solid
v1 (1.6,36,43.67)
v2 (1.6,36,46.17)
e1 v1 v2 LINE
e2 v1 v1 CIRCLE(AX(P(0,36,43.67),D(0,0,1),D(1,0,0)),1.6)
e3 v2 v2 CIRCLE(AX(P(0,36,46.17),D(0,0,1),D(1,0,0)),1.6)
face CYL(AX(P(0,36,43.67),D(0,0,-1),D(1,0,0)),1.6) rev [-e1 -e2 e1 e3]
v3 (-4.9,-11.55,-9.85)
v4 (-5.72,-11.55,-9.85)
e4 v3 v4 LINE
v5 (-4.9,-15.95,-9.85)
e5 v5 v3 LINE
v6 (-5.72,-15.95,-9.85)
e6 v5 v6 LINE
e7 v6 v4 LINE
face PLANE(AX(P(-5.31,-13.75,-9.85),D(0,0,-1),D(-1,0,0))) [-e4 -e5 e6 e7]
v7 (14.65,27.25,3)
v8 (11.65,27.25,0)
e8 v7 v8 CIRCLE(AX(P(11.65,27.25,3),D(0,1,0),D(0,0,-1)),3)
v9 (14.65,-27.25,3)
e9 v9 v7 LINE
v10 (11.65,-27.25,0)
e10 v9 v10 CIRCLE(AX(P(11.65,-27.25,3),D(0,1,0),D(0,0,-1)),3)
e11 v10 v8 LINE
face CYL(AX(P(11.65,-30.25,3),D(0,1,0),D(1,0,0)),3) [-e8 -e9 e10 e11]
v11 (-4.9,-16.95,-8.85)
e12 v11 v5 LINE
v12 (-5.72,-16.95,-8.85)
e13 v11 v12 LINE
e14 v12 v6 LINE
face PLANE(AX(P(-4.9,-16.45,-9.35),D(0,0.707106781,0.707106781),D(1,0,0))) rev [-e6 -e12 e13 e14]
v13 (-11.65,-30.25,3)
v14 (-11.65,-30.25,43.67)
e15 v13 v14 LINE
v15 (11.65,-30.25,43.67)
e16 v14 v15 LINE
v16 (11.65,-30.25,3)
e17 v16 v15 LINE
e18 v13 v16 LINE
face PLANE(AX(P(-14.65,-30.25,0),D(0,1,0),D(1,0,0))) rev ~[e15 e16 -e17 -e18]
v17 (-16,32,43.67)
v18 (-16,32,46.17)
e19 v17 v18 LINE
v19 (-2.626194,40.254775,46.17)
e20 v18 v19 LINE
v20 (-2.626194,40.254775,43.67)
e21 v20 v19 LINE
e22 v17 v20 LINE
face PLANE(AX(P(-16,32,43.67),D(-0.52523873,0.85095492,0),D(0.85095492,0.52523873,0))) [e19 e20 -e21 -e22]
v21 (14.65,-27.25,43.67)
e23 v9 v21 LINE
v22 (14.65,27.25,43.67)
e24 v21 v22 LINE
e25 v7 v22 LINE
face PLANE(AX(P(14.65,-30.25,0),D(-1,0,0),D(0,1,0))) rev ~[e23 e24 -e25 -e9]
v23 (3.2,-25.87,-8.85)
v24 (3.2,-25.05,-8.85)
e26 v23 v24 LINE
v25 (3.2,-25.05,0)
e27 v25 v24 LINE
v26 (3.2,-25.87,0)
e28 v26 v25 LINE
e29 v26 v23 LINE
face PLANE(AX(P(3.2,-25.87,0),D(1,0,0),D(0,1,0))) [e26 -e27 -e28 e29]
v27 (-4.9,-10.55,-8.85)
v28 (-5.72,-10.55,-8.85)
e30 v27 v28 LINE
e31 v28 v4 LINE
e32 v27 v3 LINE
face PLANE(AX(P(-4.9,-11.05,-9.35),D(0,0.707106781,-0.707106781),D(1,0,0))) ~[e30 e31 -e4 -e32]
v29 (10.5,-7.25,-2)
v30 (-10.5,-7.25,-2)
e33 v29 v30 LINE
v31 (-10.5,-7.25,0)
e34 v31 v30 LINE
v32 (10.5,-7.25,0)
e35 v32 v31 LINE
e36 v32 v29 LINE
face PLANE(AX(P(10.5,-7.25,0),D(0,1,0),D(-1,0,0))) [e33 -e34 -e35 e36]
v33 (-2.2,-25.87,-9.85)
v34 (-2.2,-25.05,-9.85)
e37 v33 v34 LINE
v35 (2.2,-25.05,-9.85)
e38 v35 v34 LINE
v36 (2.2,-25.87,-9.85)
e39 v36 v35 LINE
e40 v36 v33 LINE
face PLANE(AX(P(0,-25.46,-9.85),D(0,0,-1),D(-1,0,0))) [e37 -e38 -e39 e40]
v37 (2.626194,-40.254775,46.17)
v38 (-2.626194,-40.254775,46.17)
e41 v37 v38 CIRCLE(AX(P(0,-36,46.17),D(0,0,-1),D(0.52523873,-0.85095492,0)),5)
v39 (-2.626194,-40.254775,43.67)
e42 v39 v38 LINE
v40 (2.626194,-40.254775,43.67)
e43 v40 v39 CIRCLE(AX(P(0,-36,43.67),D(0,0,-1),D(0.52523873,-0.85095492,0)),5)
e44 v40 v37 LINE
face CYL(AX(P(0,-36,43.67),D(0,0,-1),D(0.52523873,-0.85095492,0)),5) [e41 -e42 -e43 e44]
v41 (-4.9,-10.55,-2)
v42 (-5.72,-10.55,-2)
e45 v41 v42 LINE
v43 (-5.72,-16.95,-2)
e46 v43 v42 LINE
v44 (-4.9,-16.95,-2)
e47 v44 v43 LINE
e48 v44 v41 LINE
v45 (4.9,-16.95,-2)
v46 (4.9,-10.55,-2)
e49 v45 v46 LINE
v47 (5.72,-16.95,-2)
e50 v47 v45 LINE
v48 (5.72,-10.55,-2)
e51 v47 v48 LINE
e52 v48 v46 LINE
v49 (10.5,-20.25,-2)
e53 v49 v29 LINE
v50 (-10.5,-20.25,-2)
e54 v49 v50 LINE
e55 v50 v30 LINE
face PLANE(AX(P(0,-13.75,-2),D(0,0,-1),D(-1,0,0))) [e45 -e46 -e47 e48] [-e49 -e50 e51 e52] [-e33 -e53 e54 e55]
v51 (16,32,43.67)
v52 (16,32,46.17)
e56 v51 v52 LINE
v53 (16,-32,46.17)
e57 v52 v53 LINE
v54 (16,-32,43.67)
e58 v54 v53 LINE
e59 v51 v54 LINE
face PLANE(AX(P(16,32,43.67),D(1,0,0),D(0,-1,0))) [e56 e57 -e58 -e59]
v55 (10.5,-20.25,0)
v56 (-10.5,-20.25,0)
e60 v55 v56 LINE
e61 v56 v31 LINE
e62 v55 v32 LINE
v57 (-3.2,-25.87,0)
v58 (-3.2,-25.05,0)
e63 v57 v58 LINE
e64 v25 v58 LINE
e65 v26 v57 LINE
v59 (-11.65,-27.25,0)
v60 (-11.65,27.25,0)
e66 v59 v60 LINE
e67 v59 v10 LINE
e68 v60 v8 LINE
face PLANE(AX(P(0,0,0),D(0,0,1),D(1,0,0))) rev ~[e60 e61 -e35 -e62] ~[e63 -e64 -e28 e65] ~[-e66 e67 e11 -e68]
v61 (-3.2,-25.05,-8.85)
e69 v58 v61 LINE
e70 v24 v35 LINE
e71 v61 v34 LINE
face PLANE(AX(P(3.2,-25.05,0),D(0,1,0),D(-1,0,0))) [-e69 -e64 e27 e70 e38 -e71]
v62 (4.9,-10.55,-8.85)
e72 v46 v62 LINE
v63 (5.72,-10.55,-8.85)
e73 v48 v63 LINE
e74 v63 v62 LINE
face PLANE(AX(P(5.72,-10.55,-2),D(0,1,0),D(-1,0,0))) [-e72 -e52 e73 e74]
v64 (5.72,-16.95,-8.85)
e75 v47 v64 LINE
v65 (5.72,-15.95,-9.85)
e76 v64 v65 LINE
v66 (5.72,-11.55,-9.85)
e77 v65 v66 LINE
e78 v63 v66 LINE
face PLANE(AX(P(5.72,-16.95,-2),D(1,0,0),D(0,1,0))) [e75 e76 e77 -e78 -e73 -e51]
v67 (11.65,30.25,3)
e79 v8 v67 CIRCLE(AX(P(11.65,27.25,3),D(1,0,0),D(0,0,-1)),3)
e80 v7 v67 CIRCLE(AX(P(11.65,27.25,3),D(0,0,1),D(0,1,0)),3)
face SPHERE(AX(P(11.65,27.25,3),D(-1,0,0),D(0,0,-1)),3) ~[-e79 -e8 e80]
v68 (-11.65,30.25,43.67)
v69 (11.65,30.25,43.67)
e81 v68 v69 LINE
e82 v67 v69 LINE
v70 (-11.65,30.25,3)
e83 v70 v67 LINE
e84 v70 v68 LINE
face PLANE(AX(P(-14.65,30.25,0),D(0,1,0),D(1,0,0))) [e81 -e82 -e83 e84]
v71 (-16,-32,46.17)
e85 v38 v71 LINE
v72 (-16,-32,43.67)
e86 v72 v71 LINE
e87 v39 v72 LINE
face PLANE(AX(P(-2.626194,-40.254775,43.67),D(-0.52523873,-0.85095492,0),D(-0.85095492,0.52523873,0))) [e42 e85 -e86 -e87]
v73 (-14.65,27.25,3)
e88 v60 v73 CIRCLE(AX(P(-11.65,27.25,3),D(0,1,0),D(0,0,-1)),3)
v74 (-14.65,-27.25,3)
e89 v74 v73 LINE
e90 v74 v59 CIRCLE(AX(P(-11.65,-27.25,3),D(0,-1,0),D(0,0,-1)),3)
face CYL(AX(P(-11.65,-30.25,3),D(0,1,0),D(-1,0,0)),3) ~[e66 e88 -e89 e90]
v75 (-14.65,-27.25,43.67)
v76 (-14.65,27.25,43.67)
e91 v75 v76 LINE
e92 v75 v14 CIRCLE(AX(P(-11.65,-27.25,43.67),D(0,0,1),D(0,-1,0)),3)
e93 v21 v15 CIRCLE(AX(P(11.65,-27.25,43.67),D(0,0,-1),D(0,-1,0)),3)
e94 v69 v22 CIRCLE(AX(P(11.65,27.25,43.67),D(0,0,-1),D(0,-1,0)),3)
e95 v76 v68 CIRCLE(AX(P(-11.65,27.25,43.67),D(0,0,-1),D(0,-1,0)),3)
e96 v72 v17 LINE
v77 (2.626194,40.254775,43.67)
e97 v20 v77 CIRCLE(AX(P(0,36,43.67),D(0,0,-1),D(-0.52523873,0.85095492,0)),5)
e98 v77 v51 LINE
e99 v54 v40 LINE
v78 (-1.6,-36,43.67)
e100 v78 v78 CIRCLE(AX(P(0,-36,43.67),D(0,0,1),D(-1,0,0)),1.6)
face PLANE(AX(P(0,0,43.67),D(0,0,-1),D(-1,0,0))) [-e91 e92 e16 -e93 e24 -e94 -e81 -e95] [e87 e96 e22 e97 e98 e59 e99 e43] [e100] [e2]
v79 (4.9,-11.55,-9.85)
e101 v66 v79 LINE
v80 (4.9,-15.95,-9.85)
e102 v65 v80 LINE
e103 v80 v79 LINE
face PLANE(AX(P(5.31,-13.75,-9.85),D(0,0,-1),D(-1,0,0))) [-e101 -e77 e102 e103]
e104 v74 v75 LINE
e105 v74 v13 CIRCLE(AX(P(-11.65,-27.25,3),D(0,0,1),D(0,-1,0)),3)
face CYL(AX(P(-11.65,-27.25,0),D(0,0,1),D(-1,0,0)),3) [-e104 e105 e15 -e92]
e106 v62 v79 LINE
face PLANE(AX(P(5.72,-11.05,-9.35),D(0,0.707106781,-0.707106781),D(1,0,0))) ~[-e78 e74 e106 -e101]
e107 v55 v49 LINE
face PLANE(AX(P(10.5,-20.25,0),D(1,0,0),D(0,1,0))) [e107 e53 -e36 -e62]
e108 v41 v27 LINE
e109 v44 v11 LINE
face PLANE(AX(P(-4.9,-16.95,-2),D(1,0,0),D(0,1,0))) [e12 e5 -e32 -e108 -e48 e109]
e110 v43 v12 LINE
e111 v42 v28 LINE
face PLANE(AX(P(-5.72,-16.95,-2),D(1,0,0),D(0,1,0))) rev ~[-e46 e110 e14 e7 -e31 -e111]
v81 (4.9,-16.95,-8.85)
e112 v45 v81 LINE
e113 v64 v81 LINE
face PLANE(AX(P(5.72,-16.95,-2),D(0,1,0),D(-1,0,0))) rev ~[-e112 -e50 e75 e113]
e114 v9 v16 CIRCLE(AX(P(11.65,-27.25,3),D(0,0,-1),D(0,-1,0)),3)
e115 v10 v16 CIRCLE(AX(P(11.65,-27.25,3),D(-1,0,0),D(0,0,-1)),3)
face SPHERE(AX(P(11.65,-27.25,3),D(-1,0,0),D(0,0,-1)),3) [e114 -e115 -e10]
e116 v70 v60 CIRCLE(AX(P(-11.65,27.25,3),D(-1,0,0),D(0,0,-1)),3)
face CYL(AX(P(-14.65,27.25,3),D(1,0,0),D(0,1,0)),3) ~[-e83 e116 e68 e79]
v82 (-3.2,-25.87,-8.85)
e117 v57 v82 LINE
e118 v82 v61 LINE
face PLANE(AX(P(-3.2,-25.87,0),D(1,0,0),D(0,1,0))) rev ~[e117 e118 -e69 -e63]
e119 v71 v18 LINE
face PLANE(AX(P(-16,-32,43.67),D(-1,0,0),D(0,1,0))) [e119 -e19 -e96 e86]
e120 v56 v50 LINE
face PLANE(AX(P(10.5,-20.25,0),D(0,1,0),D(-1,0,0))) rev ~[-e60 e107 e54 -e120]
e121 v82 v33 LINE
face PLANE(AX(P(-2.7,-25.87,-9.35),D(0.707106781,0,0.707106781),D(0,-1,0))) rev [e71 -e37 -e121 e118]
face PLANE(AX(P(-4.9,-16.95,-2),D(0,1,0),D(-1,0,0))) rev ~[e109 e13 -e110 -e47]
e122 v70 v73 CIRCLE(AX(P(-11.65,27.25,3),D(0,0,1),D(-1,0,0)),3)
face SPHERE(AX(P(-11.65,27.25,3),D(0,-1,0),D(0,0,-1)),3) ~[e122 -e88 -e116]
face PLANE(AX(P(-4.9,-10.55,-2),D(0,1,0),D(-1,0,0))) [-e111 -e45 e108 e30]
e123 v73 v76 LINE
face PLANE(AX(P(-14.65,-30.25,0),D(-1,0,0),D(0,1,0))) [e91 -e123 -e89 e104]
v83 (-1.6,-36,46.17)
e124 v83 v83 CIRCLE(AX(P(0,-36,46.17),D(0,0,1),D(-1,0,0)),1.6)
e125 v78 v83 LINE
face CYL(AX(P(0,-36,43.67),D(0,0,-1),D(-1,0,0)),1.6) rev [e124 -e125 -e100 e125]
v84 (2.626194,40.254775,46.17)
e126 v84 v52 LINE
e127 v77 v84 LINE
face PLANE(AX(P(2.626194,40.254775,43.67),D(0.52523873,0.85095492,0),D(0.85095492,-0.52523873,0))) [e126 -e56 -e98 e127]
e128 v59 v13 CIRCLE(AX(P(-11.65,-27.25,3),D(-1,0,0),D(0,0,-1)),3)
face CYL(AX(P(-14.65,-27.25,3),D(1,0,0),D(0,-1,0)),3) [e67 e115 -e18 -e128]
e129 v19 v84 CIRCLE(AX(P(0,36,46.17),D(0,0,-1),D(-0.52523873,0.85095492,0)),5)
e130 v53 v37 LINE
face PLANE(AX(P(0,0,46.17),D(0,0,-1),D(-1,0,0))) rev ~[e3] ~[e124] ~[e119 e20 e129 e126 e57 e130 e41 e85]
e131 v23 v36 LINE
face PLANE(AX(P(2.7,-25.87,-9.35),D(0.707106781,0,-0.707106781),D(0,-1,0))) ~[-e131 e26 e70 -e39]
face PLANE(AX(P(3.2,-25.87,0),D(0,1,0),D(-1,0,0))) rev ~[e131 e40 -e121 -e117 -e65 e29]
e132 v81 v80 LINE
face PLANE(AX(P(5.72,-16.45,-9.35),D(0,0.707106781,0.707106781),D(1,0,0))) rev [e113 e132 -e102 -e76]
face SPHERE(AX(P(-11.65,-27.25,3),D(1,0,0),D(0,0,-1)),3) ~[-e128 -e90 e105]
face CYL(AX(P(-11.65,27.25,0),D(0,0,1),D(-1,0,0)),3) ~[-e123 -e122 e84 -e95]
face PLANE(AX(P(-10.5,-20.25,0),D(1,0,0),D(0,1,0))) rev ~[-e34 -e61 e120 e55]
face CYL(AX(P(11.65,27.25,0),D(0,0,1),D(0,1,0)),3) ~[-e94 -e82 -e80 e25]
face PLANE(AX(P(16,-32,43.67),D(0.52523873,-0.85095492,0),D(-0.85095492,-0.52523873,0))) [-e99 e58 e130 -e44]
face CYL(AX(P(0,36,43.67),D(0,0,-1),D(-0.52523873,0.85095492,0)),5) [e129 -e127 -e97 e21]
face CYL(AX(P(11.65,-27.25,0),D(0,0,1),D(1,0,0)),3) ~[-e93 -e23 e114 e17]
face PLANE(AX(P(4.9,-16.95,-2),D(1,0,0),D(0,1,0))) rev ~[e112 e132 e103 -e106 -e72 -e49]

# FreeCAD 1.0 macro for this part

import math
import FreeCAD as App
import Part
import Sketcher
from FreeCAD import Vector


def edges_at(feature, points):
    """Names of the edges that pass closest to the given points."""
    edges = feature.Shape.Edges
    near = lambda p: min(range(len(edges)), key=lambda i: edges[i].distToShape(Part.Vertex(*p))[0])
    return sorted({f"Edge{near(p) + 1}" for p in points})


def add_polygon(sketch, points):
    """Adds a closed chain of lines whose ends are joined by coincident constraints."""
    first, n = sketch.GeometryCount, len(points)
    for a, b in zip(points, points[1:] + points[:1]):
        sketch.addGeometry(Part.LineSegment(App.Vector(*a, 0), App.Vector(*b, 0)), False)
    for i in range(n):
        sketch.addConstraint(Sketcher.Constraint("Coincident", first + i, 2, first + (i + 1) % n, 1))

doc = App.newDocument("Part")
params = doc.addObject("Spreadsheet::Sheet", "Params")
for row, (alias, value) in enumerate([
    ("sketch1_width", "29.3 mm"),
    ("sketch1_height", "60.5 mm"),
    ("pad1_length", "43.67 mm"),
    ("sketch2_radius", "5 mm"),
    ("sketch2_diameter", "3.2 mm"),
    ("sketch2_height", "64 mm"),
    ("pad2_length", "2.5 mm"),
    ("fillet_radius", "3 mm"),
    ("sketch3_width", "21 mm"),
    ("sketch3_height", "13 mm"),
    ("pad3_length", "2 mm"),
    ("sketch4_height", "6.4 mm"),
    ("sketch4_width", "0.82 mm"),
    ("pad4_length", "7.85 mm"),
    ("sketch5_width", "6.4 mm"),
    ("sketch5_height", "0.82 mm"),
    ("pad5_length", "9.85 mm"),
    ("chamfer_size", "1 mm"),
], start=1):
    params.set(f"A{row}", alias)
    params.set(f"B{row}", "=" + value)
    params.setAlias(f"B{row}", alias)

body = doc.addObject("PartDesign::Body", "Body")

# Sketch on XY plane
sketch1 = body.newObject("Sketcher::SketchObject", "Sketch")
sketch1.AttachmentSupport = (doc.getObject("XY_Plane"), [""])
sketch1.MapMode = "FlatFace"
add_polygon(sketch1, [(-15, 30), (-15, -30), (15, -30), (15, 30)])  # lines 0-3
sketch1.addConstraint(Sketcher.Constraint("Vertical", 0))
sketch1.addConstraint(Sketcher.Constraint("Horizontal", 1))
sketch1.addConstraint(Sketcher.Constraint("Vertical", 2))
sketch1.addConstraint(Sketcher.Constraint("Horizontal", 3))
sketch1.addConstraint(Sketcher.Constraint("Symmetric", 0, 2, 2, 2, -1, 1))
sketch1.addConstraint(Sketcher.Constraint("DistanceX", 1, 1, 1, 2, 29.3))
sketch1.addConstraint(Sketcher.Constraint("DistanceY", 0, 2, 0, 1, 60.5))
sketch1.setExpression("Constraints[9]", "Params.sketch1_width")
sketch1.setExpression("Constraints[10]", "Params.sketch1_height")
pad1 = body.newObject("PartDesign::Pad", "Pad")
pad1.Profile = sketch1
pad1.setExpression("Length", "Params.pad1_length")

# Sketch on XY plane
sketch2 = body.newObject("Sketcher::SketchObject", "Sketch001")
sketch2.AttachmentSupport = (doc.getObject("XY_Plane"), [""])
sketch2.MapMode = "FlatFace"
sketch2.AttachmentOffset = App.Placement(Vector(0, 0, 43.67), App.Rotation())
sketch2.addGeometry(Part.LineSegment(Vector(-2.6, 40.3, 0), Vector(-16, 32, 0)), False)
sketch2.addGeometry(Part.LineSegment(Vector(-16, 32, 0), Vector(-16, -32, 0)), False)
sketch2.addGeometry(Part.LineSegment(Vector(-16, -32, 0), Vector(-2.6, -40.3, 0)), False)
sketch2.addGeometry(Part.ArcOfCircle(Part.Circle(Vector(0, -36, 0), Vector(0, 0, 1), 5), math.radians(-122), math.radians(-58)), False)
sketch2.addGeometry(Part.LineSegment(Vector(2.6, -40.3, 0), Vector(16, -32, 0)), False)
sketch2.addGeometry(Part.LineSegment(Vector(16, -32, 0), Vector(16, 32, 0)), False)
sketch2.addGeometry(Part.LineSegment(Vector(16, 32, 0), Vector(2.6, 40.3, 0)), False)
sketch2.addGeometry(Part.ArcOfCircle(Part.Circle(Vector(0, 36, 0), Vector(0, 0, 1), 5), math.radians(58), math.radians(122)), False)
sketch2.addGeometry(Part.Circle(Vector(0, -36, 0), Vector(0, 0, 1), 1.6), False)
sketch2.addGeometry(Part.Circle(Vector(0, 36, 0), Vector(0, 0, 1), 1.6), False)
sketch2.addConstraint(Sketcher.Constraint("Coincident", 0, 2, 1, 1))
sketch2.addConstraint(Sketcher.Constraint("Coincident", 1, 2, 2, 1))
sketch2.addConstraint(Sketcher.Constraint("Tangent", 2, 2, 3, 1))
sketch2.addConstraint(Sketcher.Constraint("Tangent", 3, 2, 4, 1))
sketch2.addConstraint(Sketcher.Constraint("Coincident", 4, 2, 5, 1))
sketch2.addConstraint(Sketcher.Constraint("Coincident", 5, 2, 6, 1))
sketch2.addConstraint(Sketcher.Constraint("Tangent", 6, 2, 7, 1))
sketch2.addConstraint(Sketcher.Constraint("Tangent", 7, 2, 0, 1))
sketch2.addConstraint(Sketcher.Constraint("Vertical", 1))
sketch2.addConstraint(Sketcher.Constraint("Vertical", 5))
sketch2.addConstraint(Sketcher.Constraint("Coincident", 8, 3, 3, 3))
sketch2.addConstraint(Sketcher.Constraint("Coincident", 9, 3, 7, 3))
sketch2.addConstraint(Sketcher.Constraint("Equal", 3, 7))
sketch2.addConstraint(Sketcher.Constraint("Equal", 8, 9))
sketch2.addConstraint(Sketcher.Constraint("Symmetric", 3, 3, 7, 3, -1, 1))
sketch2.addConstraint(Sketcher.Constraint("Symmetric", 0, 2, 4, 2, -1, 1))
sketch2.addConstraint(Sketcher.Constraint("Symmetric", 2, 2, 3, 2, -2))
sketch2.addConstraint(Sketcher.Constraint("Parallel", 2, 6))
sketch2.addConstraint(Sketcher.Constraint("Radius", 3, 5.0))
sketch2.addConstraint(Sketcher.Constraint("Diameter", 8, 3.2))
sketch2.addConstraint(Sketcher.Constraint("DistanceY", 1, 2, 1, 1, 64.0))
sketch2.addConstraint(Sketcher.Constraint("DistanceY", 3, 3, -1, 1, 36.0))
sketch2.addConstraint(Sketcher.Constraint("DistanceX", 0, 2, -1, 1, 16.0))
sketch2.setExpression("Constraints[18]", "Params.sketch2_radius")
sketch2.setExpression("Constraints[19]", "Params.sketch2_diameter")
sketch2.setExpression("Constraints[20]", "Params.sketch2_height")
pad2 = body.newObject("PartDesign::Pad", "Pad001")
pad2.Profile = sketch2
pad2.setExpression("Length", "Params.pad2_length")
doc.recompute()

fillet = body.newObject("PartDesign::Fillet", "Fillet")
fillet.Base = (pad2, edges_at(pad2, [
    (0, -30.25, 0),
    (-14.65, 0, 0),
    (0, 30.25, 0),
    (14.65, 0, 0),
    (14.65, -30.25, 21.835),
    (-14.65, -30.25, 21.835),
    (-14.65, 30.25, 21.835),
    (14.65, 30.25, 21.835),
]))
fillet.setExpression("Radius", "Params.fillet_radius")

# Sketch on XY plane
sketch3 = body.newObject("Sketcher::SketchObject", "Sketch002")
sketch3.AttachmentSupport = (doc.getObject("XY_Plane"), [""])
sketch3.MapMode = "FlatFace"
add_polygon(sketch3, [(10, -7), (10, -20), (-10, -20), (-10, -7)])  # lines 0-3
sketch3.addConstraint(Sketcher.Constraint("Vertical", 0))
sketch3.addConstraint(Sketcher.Constraint("Horizontal", 1))
sketch3.addConstraint(Sketcher.Constraint("Vertical", 2))
sketch3.addConstraint(Sketcher.Constraint("Horizontal", 3))
sketch3.addConstraint(Sketcher.Constraint("DistanceX", 1, 2, 1, 1, 21.0))
sketch3.addConstraint(Sketcher.Constraint("DistanceY", 0, 2, 0, 1, 13.0))
sketch3.addConstraint(Sketcher.Constraint("DistanceX", -1, 1, 0, 2, 10.5))
sketch3.addConstraint(Sketcher.Constraint("DistanceY", 0, 2, -1, 1, 20.25))
sketch3.setExpression("Constraints[8]", "Params.sketch3_width")
sketch3.setExpression("Constraints[9]", "Params.sketch3_height")
pad3 = body.newObject("PartDesign::Pad", "Pad002")
pad3.Profile = sketch3
pad3.setExpression("Length", "Params.pad3_length")
pad3.Reversed = True

# Sketch on XY plane
sketch4 = body.newObject("Sketcher::SketchObject", "Sketch003")
sketch4.AttachmentSupport = (doc.getObject("XY_Plane"), [""])
sketch4.MapMode = "FlatFace"
sketch4.AttachmentOffset = App.Placement(Vector(0, 0, -2), App.Rotation())
add_polygon(sketch4, [(5.7, -10.6), (5.7, -16.9), (4.9, -16.9), (4.9, -10.6)])  # lines 0-3
add_polygon(sketch4, [(-4.9, -10.6), (-4.9, -16.9), (-5.7, -16.9), (-5.7, -10.6)])  # lines 4-7
sketch4.addConstraint(Sketcher.Constraint("Vertical", 0))
sketch4.addConstraint(Sketcher.Constraint("Horizontal", 1))
sketch4.addConstraint(Sketcher.Constraint("Vertical", 2))
sketch4.addConstraint(Sketcher.Constraint("Horizontal", 3))
sketch4.addConstraint(Sketcher.Constraint("Vertical", 4))
sketch4.addConstraint(Sketcher.Constraint("Horizontal", 5))
sketch4.addConstraint(Sketcher.Constraint("Vertical", 6))
sketch4.addConstraint(Sketcher.Constraint("Horizontal", 7))
sketch4.addConstraint(Sketcher.Constraint("Symmetric", 1, 2, 4, 2, -2))
sketch4.addConstraint(Sketcher.Constraint("Symmetric", 3, 2, 6, 2, -2))
sketch4.addConstraint(Sketcher.Constraint("DistanceY", 0, 2, 0, 1, 6.4))
sketch4.addConstraint(Sketcher.Constraint("DistanceX", 1, 2, 1, 1, 0.82))
sketch4.addConstraint(Sketcher.Constraint("DistanceX", -1, 1, 1, 2, 4.9))
sketch4.addConstraint(Sketcher.Constraint("DistanceY", 0, 2, -1, 1, 16.95))
sketch4.setExpression("Constraints[18]", "Params.sketch4_height")
sketch4.setExpression("Constraints[19]", "Params.sketch4_width")
pad4 = body.newObject("PartDesign::Pad", "Pad003")
pad4.Profile = sketch4
pad4.setExpression("Length", "Params.pad4_length")
pad4.Reversed = True

# Sketch on XY plane
sketch5 = body.newObject("Sketcher::SketchObject", "Sketch004")
sketch5.AttachmentSupport = (doc.getObject("XY_Plane"), [""])
sketch5.MapMode = "FlatFace"
add_polygon(sketch5, [(3.2, -25.1), (3.2, -25.9), (-3.2, -25.9), (-3.2, -25.1)])  # lines 0-3
sketch5.addConstraint(Sketcher.Constraint("Vertical", 0))
sketch5.addConstraint(Sketcher.Constraint("Horizontal", 1))
sketch5.addConstraint(Sketcher.Constraint("Vertical", 2))
sketch5.addConstraint(Sketcher.Constraint("Horizontal", 3))
sketch5.addConstraint(Sketcher.Constraint("DistanceX", 1, 2, 1, 1, 6.4))
sketch5.addConstraint(Sketcher.Constraint("DistanceY", 0, 2, 0, 1, 0.82))
sketch5.addConstraint(Sketcher.Constraint("DistanceX", -1, 1, 0, 2, 3.2))
sketch5.addConstraint(Sketcher.Constraint("DistanceY", 0, 2, -1, 1, 25.87))
sketch5.setExpression("Constraints[8]", "Params.sketch5_width")
sketch5.setExpression("Constraints[9]", "Params.sketch5_height")
pad5 = body.newObject("PartDesign::Pad", "Pad004")
pad5.Profile = sketch5
pad5.setExpression("Length", "Params.pad5_length")
pad5.Reversed = True
doc.recompute()

chamfer = body.newObject("PartDesign::Chamfer", "Chamfer")
chamfer.Base = (pad5, edges_at(pad5, [
    (-5.31, -16.95, -9.85),
    (-5.31, -10.55, -9.85),
    (-3.2, -25.46, -9.85),
    (3.2, -25.46, -9.85),
    (5.31, -16.95, -9.85),
    (5.31, -10.55, -9.85),
]))
chamfer.setExpression("Size", "Params.chamfer_size")

doc.recompute()
